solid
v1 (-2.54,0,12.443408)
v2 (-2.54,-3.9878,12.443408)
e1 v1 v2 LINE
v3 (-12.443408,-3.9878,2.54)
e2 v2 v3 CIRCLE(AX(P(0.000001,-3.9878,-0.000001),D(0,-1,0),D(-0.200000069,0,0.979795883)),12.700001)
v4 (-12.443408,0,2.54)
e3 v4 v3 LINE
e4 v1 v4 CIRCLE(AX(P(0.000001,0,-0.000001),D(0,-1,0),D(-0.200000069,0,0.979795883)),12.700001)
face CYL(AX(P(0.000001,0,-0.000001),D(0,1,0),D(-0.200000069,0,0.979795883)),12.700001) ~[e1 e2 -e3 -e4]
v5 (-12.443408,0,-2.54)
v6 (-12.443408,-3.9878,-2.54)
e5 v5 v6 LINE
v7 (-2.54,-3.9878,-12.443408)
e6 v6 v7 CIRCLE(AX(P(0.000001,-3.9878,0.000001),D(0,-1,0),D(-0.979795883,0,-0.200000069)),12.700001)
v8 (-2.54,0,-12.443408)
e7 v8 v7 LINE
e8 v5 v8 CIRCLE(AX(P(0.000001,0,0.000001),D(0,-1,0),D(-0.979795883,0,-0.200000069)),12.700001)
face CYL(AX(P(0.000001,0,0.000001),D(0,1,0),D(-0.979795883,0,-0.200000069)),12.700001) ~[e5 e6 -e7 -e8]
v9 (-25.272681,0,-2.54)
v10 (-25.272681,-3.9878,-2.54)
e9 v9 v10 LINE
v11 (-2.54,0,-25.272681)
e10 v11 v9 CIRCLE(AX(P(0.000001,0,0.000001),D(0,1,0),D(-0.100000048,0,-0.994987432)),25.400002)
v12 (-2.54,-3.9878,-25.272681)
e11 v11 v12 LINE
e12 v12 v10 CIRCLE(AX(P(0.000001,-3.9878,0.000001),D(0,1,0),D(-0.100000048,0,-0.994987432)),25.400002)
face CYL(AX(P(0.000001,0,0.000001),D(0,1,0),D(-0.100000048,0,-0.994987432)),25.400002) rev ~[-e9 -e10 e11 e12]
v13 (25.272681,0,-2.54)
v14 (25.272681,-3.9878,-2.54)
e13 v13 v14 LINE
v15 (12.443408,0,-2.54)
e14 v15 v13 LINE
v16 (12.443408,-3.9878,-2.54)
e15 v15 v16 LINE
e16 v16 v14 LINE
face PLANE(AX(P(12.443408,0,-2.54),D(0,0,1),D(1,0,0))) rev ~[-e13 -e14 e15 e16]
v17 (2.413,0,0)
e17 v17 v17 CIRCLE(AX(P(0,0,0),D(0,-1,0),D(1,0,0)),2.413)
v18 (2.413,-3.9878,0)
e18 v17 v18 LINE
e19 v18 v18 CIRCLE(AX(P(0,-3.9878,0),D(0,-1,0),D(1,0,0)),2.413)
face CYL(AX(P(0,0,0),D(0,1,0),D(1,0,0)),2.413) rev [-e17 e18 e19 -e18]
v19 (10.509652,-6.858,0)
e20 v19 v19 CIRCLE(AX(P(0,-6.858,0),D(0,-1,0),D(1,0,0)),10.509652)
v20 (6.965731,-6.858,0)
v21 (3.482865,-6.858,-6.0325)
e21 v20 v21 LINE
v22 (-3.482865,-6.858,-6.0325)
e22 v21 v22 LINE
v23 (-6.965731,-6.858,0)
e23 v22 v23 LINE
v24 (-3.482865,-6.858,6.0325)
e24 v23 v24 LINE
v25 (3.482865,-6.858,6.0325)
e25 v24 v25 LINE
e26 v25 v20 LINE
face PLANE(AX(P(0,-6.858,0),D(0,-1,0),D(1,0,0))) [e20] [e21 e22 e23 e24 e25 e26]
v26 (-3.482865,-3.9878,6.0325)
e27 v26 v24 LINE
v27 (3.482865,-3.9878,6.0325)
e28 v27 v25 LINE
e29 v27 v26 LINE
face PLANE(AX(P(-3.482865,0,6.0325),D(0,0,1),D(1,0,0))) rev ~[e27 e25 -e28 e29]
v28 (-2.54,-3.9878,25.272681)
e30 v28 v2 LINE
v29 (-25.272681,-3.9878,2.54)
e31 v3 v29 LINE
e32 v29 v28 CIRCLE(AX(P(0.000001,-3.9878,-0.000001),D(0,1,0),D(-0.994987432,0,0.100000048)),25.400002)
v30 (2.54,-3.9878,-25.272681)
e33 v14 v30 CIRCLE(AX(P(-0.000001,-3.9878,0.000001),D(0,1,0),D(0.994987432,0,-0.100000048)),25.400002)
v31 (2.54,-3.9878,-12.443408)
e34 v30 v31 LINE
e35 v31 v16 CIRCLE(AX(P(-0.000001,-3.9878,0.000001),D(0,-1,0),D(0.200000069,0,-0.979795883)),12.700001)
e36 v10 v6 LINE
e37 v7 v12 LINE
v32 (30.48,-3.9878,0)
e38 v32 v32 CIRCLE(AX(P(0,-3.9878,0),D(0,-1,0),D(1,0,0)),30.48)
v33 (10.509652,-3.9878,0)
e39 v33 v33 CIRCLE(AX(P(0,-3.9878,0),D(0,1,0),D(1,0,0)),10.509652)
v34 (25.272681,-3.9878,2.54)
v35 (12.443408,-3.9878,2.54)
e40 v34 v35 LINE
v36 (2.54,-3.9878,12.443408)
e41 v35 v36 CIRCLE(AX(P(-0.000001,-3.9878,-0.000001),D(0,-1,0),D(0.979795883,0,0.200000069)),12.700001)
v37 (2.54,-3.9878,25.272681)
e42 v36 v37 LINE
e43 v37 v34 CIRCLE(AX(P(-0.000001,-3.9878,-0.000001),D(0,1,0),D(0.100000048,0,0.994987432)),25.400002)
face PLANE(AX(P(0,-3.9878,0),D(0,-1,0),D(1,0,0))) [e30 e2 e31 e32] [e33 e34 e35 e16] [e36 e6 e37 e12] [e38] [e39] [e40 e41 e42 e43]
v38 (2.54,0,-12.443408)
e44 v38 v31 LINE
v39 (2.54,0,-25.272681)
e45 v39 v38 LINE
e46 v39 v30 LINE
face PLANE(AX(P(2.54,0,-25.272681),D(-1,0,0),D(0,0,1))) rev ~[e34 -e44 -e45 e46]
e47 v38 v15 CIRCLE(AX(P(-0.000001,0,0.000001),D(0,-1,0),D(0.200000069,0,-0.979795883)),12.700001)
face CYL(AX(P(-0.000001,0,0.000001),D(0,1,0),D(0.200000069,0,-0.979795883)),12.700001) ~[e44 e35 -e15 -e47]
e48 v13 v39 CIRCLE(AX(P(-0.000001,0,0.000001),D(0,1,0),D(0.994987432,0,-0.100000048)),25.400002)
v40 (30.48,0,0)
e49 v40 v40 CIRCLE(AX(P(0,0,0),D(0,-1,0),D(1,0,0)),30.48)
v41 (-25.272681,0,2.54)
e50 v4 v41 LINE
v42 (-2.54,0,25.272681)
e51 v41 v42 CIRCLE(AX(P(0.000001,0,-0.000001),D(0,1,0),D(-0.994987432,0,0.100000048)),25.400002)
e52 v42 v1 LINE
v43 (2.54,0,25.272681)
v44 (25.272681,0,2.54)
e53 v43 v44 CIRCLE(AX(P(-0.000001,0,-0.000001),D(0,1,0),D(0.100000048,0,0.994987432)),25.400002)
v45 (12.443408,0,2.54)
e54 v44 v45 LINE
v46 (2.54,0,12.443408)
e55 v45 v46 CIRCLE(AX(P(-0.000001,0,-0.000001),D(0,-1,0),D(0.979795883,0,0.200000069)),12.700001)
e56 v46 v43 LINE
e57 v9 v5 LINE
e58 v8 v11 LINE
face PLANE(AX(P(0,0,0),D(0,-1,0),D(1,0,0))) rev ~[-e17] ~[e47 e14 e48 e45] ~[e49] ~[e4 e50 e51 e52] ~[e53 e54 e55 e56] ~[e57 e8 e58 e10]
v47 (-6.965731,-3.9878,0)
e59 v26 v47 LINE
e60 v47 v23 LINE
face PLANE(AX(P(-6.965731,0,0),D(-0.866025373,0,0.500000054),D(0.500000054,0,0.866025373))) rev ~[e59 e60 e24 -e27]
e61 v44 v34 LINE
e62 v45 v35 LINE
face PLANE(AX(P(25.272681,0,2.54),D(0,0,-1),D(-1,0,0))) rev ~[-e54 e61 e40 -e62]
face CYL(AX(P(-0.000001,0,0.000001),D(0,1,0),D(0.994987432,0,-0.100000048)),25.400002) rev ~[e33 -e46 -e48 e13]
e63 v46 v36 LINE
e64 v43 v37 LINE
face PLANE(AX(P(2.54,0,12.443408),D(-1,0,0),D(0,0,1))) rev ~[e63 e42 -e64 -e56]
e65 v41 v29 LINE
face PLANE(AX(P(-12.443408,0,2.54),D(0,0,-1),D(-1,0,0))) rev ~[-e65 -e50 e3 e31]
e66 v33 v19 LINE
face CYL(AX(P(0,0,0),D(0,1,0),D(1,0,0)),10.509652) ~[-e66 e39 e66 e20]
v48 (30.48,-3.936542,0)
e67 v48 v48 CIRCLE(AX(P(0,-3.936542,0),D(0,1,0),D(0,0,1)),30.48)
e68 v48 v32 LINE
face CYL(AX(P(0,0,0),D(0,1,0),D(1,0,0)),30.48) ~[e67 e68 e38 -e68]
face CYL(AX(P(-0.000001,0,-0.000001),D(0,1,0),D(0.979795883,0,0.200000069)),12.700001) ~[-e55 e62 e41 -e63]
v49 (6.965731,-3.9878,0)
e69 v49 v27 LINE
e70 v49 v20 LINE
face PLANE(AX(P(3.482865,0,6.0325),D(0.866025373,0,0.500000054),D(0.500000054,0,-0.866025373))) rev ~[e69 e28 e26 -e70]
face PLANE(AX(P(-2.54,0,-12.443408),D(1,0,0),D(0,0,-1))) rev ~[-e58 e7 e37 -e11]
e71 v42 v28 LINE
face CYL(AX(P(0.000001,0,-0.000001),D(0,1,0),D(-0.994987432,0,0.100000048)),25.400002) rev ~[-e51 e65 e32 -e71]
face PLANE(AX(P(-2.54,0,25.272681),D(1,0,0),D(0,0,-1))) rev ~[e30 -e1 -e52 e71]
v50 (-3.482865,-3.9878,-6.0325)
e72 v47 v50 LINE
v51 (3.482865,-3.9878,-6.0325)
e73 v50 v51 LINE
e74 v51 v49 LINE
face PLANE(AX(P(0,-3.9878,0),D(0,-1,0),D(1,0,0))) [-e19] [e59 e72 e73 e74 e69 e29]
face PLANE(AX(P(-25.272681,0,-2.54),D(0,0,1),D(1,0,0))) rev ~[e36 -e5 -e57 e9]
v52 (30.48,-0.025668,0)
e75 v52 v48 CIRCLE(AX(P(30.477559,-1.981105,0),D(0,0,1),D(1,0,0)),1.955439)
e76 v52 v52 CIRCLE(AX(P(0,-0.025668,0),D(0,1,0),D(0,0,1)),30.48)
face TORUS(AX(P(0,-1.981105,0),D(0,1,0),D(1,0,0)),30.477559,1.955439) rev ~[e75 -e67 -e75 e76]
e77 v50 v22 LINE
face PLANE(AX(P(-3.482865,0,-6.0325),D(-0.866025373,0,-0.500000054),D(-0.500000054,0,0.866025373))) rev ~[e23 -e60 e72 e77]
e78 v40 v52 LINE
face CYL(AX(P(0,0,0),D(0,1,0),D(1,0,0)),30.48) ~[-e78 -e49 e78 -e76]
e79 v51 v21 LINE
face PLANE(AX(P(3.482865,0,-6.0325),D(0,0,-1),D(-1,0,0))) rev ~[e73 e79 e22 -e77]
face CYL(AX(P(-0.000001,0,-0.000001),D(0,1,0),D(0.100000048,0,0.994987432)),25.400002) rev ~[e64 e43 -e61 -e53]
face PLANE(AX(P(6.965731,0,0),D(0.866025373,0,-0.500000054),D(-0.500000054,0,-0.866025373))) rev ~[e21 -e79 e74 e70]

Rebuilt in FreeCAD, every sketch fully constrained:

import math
import FreeCAD as App
import Part
import Sketcher

V = App.Vector
Q = App.Units.Quantity

doc = App.newDocument("Part")
params = doc.addObject("Spreadsheet::Sheet", "Params")
for row, (alias, value) in enumerate([
    ("sketch1_radius", "1.0000001 in"),
    ("sketch1_diameter", "2.4 in"),
    ("sketch1_radius2", "0.5000001 in"),
    ("pad1_length", "0.157 in"),
    ("groove_angle", "360 deg"),
    ("sketch3_diameter", "0.19 in"),
    ("pad2_length", "0.157 in"),
    ("pad3_length", "0.27 in"),
], start=1):
    params.set(f"A{row}", alias)
    params.set(f"B{row}", "=" + value)
    params.setAlias(f"B{row}", alias)

body = doc.addObject("PartDesign::Body", "Body")

sketch1 = doc.addObject("Sketcher::SketchObject", "Sketch")
body.addObject(sketch1)
sketch1.AttachmentSupport = (doc.XZ_Plane, [""])
sketch1.MapMode = "FlatFace"
sketch1.addGeometry([
    Part.Circle(V(0, 0, 0), V(0, 0, 1), 30),
    Part.ArcOfCircle(Part.Circle(V(0, 0, 0), V(0, 0, 1), 25), math.radians(-174), math.radians(-96)),
    Part.LineSegment(V(-25, -3, 0), V(-12, -3, 0)),
    Part.ArcOfCircle(Part.Circle(V(0, 0, 0), V(0, 0, 1), 13), math.radians(-168), math.radians(-102)),
    Part.LineSegment(V(-3, -12, 0), V(-3, -25, 0)),
    Part.ArcOfCircle(Part.Circle(V(0, 0, 0), V(0, 0, 1), 25), math.radians(-84), math.radians(-6)),
    Part.LineSegment(V(3, -25, 0), V(3, -12, 0)),
    Part.ArcOfCircle(Part.Circle(V(0, 0, 0), V(0, 0, 1), 13), math.radians(-78), math.radians(-12)),
    Part.LineSegment(V(12, -3, 0), V(25, -3, 0)),
    Part.ArcOfCircle(Part.Circle(V(0, 0, 0), V(0, 0, 1), 25), math.radians(96), math.radians(174)),
    Part.LineSegment(V(-3, 25, 0), V(-3, 12, 0)),
    Part.ArcOfCircle(Part.Circle(V(0, 0, 0), V(0, 0, 1), 13), math.radians(102), math.radians(168)),
    Part.LineSegment(V(-12, 3, 0), V(-25, 3, 0)),
    Part.Circle(V(0, 0, 0), V(0, 0, 1), 11),
    Part.ArcOfCircle(Part.Circle(V(0, 0, 0), V(0, 0, 1), 25), math.radians(6), math.radians(84)),
    Part.LineSegment(V(25, 3, 0), V(12, 3, 0)),
    Part.ArcOfCircle(Part.Circle(V(0, 0, 0), V(0, 0, 1), 13), math.radians(12), math.radians(78)),
    Part.LineSegment(V(3, 12, 0), V(3, 25, 0)),
], False)
sketch1.addConstraint([
    Sketcher.Constraint("Coincident", 1, 1, 2, 1),
    Sketcher.Constraint("Coincident", 2, 2, 3, 1),
    Sketcher.Constraint("Coincident", 3, 2, 4, 1),
    Sketcher.Constraint("Coincident", 4, 2, 1, 2),
    Sketcher.Constraint("Coincident", 5, 1, 6, 1),
    Sketcher.Constraint("Coincident", 6, 2, 7, 1),
    Sketcher.Constraint("Coincident", 7, 2, 8, 1),
    Sketcher.Constraint("Coincident", 8, 2, 5, 2),
    Sketcher.Constraint("Coincident", 9, 1, 10, 1),
    Sketcher.Constraint("Coincident", 10, 2, 11, 1),
    Sketcher.Constraint("Coincident", 11, 2, 12, 1),
    Sketcher.Constraint("Coincident", 12, 2, 9, 2),
    Sketcher.Constraint("Coincident", 14, 1, 15, 1),
    Sketcher.Constraint("Coincident", 15, 2, 16, 1),
    Sketcher.Constraint("Coincident", 16, 2, 17, 1),
    Sketcher.Constraint("Coincident", 17, 2, 14, 2),
    Sketcher.Constraint("Horizontal", 2),
    Sketcher.Constraint("Vertical", 4),
    Sketcher.Constraint("Vertical", 6),
    Sketcher.Constraint("Horizontal", 8),
    Sketcher.Constraint("Vertical", 10),
    Sketcher.Constraint("Horizontal", 12),
    Sketcher.Constraint("Horizontal", 15),
    Sketcher.Constraint("Vertical", 17),
    Sketcher.Constraint("Coincident", 0, 3, -1, 1),
    Sketcher.Constraint("Coincident", 1, 3, -1, 1),
    Sketcher.Constraint("Coincident", 3, 3, -1, 1),
    Sketcher.Constraint("Coincident", 5, 3, -1, 1),
    Sketcher.Constraint("Coincident", 7, 3, -1, 1),
    Sketcher.Constraint("Coincident", 9, 3, -1, 1),
    Sketcher.Constraint("Coincident", 11, 3, -1, 1),
    Sketcher.Constraint("Coincident", 13, 3, -1, 1),
    Sketcher.Constraint("Coincident", 14, 3, -1, 1),
    Sketcher.Constraint("Coincident", 16, 3, -1, 1),
    Sketcher.Constraint("Equal", 1, 5),
    Sketcher.Constraint("Equal", 3, 7),
    Sketcher.Constraint("Equal", 5, 9),
    Sketcher.Constraint("Equal", 7, 11),
    Sketcher.Constraint("Equal", 9, 14),
    Sketcher.Constraint("Equal", 11, 16),
    Sketcher.Constraint("Horizontal", 4, 2, 5, 1),
    Sketcher.Constraint("Horizontal", 2, 2, 7, 2),
    Sketcher.Constraint("Horizontal", 12, 2, 14, 1),
    Sketcher.Constraint("Horizontal", 10, 2, 16, 2),
    Sketcher.Constraint("Vertical", 4, 2, 9, 1),
    Sketcher.Constraint("Vertical", 2, 2, 11, 2),
    Sketcher.Constraint("Equal", 15, 4),
    Sketcher.Constraint("Radius", 1, Q("1.0000001 in")),
    Sketcher.Constraint("Diameter", 0, Q("2.4 in")),
    Sketcher.Constraint("Radius", 3, Q("0.5000001 in")),
    Sketcher.Constraint("DistanceY", 1, 1, -1, 1, Q("0.1 in")),
    Sketcher.Constraint("Diameter", 13, 21.019304),
])
sketch1.setExpression("Constraints[47]", "Params.sketch1_radius")
sketch1.setExpression("Constraints[48]", "Params.sketch1_diameter")
sketch1.setExpression("Constraints[49]", "Params.sketch1_radius2")
pad1 = doc.addObject("PartDesign::Pad", "Pad")
body.addObject(pad1)
pad1.Profile = sketch1
pad1.setExpression("Length", "Params.pad1_length")

sketch2 = doc.addObject("Sketcher::SketchObject", "Sketch001")
body.addObject(sketch2)
sketch2.AttachmentSupport = (doc.XY_Plane, [""])
sketch2.MapMode = "FlatFace"
sketch2.addGeometry(Part.Circle(V(30.5, -2, 0), V(0, 0, 1), 2), False)
sketch2.addConstraint([
    Sketcher.Constraint("Diameter", 0, 3.910878),
    Sketcher.Constraint("DistanceX", -1, 1, 0, 3, 30.477559),
    Sketcher.Constraint("DistanceY", 0, 3, -1, 1, 1.981105),
])
groove = doc.addObject("PartDesign::Groove", "Groove")
body.addObject(groove)
groove.Profile = sketch2
groove.ReferenceAxis = (sketch2, ["V_Axis"])
groove.setExpression("Angle", "Params.groove_angle")

sketch3 = doc.addObject("Sketcher::SketchObject", "Sketch002")
body.addObject(sketch3)
sketch3.AttachmentSupport = (doc.XZ_Plane, [""])
sketch3.MapMode = "FlatFace"
sketch3.addGeometry([
    Part.Circle(V(0, 0, 0), V(0, 0, 1), 10.5),
    Part.Circle(V(0, 0, 0), V(0, 0, 1), 2.4),
], False)
sketch3.addConstraint([
    Sketcher.Constraint("Coincident", 0, 3, -1, 1),
    Sketcher.Constraint("Coincident", 1, 3, -1, 1),
    Sketcher.Constraint("Diameter", 1, Q("0.19 in")),
    Sketcher.Constraint("Diameter", 0, 21.019304),
])
sketch3.setExpression("Constraints[2]", "Params.sketch3_diameter")
pad2 = doc.addObject("PartDesign::Pad", "Pad001")
body.addObject(pad2)
pad2.Profile = sketch3
pad2.setExpression("Length", "Params.pad2_length")

sketch4 = doc.addObject("Sketcher::SketchObject", "Sketch003")
body.addObject(sketch4)
sketch4.AttachmentSupport = (doc.XZ_Plane, [""])
sketch4.MapMode = "FlatFace"
sketch4.addGeometry([
    Part.Circle(V(0, 0, 0), V(0, 0, 1), 11),
    Part.LineSegment(V(-7, 0, 0), V(-3, 6, 0)),
    Part.LineSegment(V(-3, 6, 0), V(3, 6, 0)),
    Part.LineSegment(V(3, 6, 0), V(7, 0, 0)),
    Part.LineSegment(V(7, 0, 0), V(3, -6, 0)),
    Part.LineSegment(V(3, -6, 0), V(-3, -6, 0)),
    Part.LineSegment(V(-3, -6, 0), V(-7, 0, 0)),
], False)
sketch4.addConstraint([
    Sketcher.Constraint("Coincident", 1, 2, 2, 1),
    Sketcher.Constraint("Coincident", 2, 2, 3, 1),
    Sketcher.Constraint("Coincident", 3, 2, 4, 1),
    Sketcher.Constraint("Coincident", 4, 2, 5, 1),
    Sketcher.Constraint("Coincident", 5, 2, 6, 1),
    Sketcher.Constraint("Coincident", 6, 2, 1, 1),
    Sketcher.Constraint("Horizontal", 2),
    Sketcher.Constraint("Horizontal", 5),
    Sketcher.Constraint("Coincident", 0, 3, -1, 1),
    Sketcher.Constraint("Symmetric", 1, 2, 4, 2, -1, 1),
    Sketcher.Constraint("Symmetric", 3, 2, 6, 2, -1, 1),
    Sketcher.Constraint("PointOnObject", 3, 2, -1),
    Sketcher.Constraint("Parallel", 3, 6),
    Sketcher.Constraint("Vertical", 2, 2, 4, 2),
    Sketcher.Constraint("Angle", 1, Q("59.999996 deg")),
    Sketcher.Constraint("DistanceY", 4, 2, 2, 2, Q("0.475 in")),
    Sketcher.Constraint("Diameter", 0, 21.019304),
    Sketcher.Constraint("DistanceX", 2, 1, 2, 2, 6.96573),
])
pad3 = doc.addObject("PartDesign::Pad", "Pad002")
body.addObject(pad3)
pad3.Profile = sketch4
pad3.setExpression("Length", "Params.pad3_length")

doc.recompute()
